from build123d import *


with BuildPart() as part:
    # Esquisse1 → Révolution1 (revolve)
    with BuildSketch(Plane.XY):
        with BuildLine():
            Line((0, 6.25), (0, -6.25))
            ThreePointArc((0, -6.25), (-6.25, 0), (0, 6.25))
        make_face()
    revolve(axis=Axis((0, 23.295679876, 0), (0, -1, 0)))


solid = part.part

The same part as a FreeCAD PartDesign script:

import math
import FreeCAD as App
import Part
import Sketcher

V = App.Vector

doc = App.newDocument("Part")
body = doc.addObject("PartDesign::Body", "Body")

sketch1 = body.newObject("Sketcher::SketchObject", "Sketch")
sketch1.AttachmentSupport = (doc.getObject("XY_Plane"), [""])
sketch1.MapMode = "FlatFace"
sketch1.addGeometry([
    Part.LineSegment(V(0, -6.25, 0), V(0, 6.25, 0)),
    Part.ArcOfCircle(Part.Circle(V(0, 0, 0), V(0, 0, 1), 6.25), math.radians(90), math.radians(270)),
], False)
sketch1.addConstraint([
    Sketcher.Constraint("Coincident", 0, 1, 1, 2),
    Sketcher.Constraint("Coincident", 1, 1, 0, 2),
    Sketcher.Constraint("Vertical", 0),
    Sketcher.Constraint("Coincident", 1, 3, -1, 1),
    Sketcher.Constraint("PointOnObject", 0, 1, -2),
    Sketcher.Constraint("Radius", 1, 6.25),
])
revolution = body.newObject("PartDesign::Revolution", "Revolution")
revolution.Profile = sketch1
revolution.ReferenceAxis = (sketch1, ["V_Axis"])
revolution.Angle = 360

doc.recompute()
